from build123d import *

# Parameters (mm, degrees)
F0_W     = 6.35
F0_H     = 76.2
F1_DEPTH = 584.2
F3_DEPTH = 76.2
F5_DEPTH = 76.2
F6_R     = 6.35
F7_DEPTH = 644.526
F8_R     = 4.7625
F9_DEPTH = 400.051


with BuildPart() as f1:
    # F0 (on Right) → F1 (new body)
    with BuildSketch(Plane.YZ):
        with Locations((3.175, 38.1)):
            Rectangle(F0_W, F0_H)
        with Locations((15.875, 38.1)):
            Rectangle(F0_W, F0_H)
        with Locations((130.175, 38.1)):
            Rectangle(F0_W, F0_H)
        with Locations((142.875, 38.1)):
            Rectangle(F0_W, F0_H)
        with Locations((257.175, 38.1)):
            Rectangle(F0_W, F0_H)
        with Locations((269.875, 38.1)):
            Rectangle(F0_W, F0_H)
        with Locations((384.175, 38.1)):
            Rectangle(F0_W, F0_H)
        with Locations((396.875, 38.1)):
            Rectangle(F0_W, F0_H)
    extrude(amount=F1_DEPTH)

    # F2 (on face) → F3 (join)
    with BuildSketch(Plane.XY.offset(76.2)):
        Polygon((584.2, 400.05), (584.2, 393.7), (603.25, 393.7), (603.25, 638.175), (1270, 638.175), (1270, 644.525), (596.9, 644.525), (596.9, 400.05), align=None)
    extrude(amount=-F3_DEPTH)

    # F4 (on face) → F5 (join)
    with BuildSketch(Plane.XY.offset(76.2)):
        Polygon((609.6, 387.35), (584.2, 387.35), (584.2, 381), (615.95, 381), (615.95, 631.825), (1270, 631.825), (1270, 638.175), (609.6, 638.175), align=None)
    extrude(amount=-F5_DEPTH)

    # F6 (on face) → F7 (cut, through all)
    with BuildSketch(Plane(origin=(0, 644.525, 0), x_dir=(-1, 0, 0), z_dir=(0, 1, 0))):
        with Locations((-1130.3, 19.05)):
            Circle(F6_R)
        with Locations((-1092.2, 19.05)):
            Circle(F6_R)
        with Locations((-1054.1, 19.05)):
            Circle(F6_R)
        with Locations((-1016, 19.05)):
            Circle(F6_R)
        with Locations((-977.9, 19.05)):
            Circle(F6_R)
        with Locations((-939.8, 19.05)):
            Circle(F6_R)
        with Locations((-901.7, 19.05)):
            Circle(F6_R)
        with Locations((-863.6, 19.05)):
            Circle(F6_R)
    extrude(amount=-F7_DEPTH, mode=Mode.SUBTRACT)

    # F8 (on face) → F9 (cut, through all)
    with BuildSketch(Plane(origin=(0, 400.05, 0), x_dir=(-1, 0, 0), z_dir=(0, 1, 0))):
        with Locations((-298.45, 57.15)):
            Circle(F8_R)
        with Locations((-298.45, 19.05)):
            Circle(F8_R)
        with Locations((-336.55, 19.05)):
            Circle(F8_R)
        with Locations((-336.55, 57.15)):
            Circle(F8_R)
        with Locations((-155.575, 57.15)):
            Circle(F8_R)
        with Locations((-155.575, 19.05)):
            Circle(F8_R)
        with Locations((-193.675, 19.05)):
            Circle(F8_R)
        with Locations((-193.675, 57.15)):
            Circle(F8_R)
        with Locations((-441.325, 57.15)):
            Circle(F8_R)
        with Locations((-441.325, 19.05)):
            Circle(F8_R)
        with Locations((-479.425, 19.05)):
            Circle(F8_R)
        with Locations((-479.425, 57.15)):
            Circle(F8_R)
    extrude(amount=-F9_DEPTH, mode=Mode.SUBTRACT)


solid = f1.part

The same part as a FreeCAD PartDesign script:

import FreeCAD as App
import Part
import Sketcher
from FreeCAD import Vector
Q = App.Units.Quantity


def add_polygon(sketch, points):
    """Adds a closed chain of lines whose ends are joined by coincident constraints."""
    first, n = sketch.GeometryCount, len(points)
    for a, b in zip(points, points[1:] + points[:1]):
        sketch.addGeometry(Part.LineSegment(App.Vector(*a, 0), App.Vector(*b, 0)), False)
    for i in range(n):
        sketch.addConstraint(Sketcher.Constraint("Coincident", first + i, 2, first + (i + 1) % n, 1))

doc = App.newDocument("Part")
body = doc.addObject("PartDesign::Body", "Body")
body.AllowCompound = True

sketch1 = body.newObject("Sketcher::SketchObject", "Sketch")
sketch1.AttachmentSupport = (doc.getObject("YZ_Plane"), [""])
sketch1.MapMode = "FlatFace"
add_polygon(sketch1, [(0, 76), (0, 0), (6, 0), (6, 76)])
add_polygon(sketch1, [(13, 76), (13, 0), (19, 0), (19, 76)])
add_polygon(sketch1, [(127, 76), (127, 0), (133, 0), (133, 76)])
add_polygon(sketch1, [(140, 76), (140, 0), (146, 0), (146, 76)])
add_polygon(sketch1, [(254, 76), (254, 0), (260, 0), (260, 76)])
add_polygon(sketch1, [(267, 76), (267, 0), (273, 0), (273, 76)])
add_polygon(sketch1, [(381, 76), (381, 0), (387, 0), (387, 76)])
add_polygon(sketch1, [(394, 76), (394, 0), (400, 0), (400, 76)])
sketch1.addConstraint(Sketcher.Constraint("Vertical", 0))
sketch1.addConstraint(Sketcher.Constraint("Horizontal", 1))
sketch1.addConstraint(Sketcher.Constraint("Vertical", 2))
sketch1.addConstraint(Sketcher.Constraint("Horizontal", 3))
sketch1.addConstraint(Sketcher.Constraint("Vertical", 4))
sketch1.addConstraint(Sketcher.Constraint("Horizontal", 5))
sketch1.addConstraint(Sketcher.Constraint("Vertical", 6))
sketch1.addConstraint(Sketcher.Constraint("Horizontal", 7))
sketch1.addConstraint(Sketcher.Constraint("Vertical", 8))
sketch1.addConstraint(Sketcher.Constraint("Horizontal", 9))
sketch1.addConstraint(Sketcher.Constraint("Vertical", 10))
sketch1.addConstraint(Sketcher.Constraint("Horizontal", 11))
sketch1.addConstraint(Sketcher.Constraint("Vertical", 12))
sketch1.addConstraint(Sketcher.Constraint("Horizontal", 13))
sketch1.addConstraint(Sketcher.Constraint("Vertical", 14))
sketch1.addConstraint(Sketcher.Constraint("Horizontal", 15))
sketch1.addConstraint(Sketcher.Constraint("Vertical", 16))
sketch1.addConstraint(Sketcher.Constraint("Horizontal", 17))
sketch1.addConstraint(Sketcher.Constraint("Vertical", 18))
sketch1.addConstraint(Sketcher.Constraint("Horizontal", 19))
sketch1.addConstraint(Sketcher.Constraint("Vertical", 20))
sketch1.addConstraint(Sketcher.Constraint("Horizontal", 21))
sketch1.addConstraint(Sketcher.Constraint("Vertical", 22))
sketch1.addConstraint(Sketcher.Constraint("Horizontal", 23))
sketch1.addConstraint(Sketcher.Constraint("Vertical", 24))
sketch1.addConstraint(Sketcher.Constraint("Horizontal", 25))
sketch1.addConstraint(Sketcher.Constraint("Vertical", 26))
sketch1.addConstraint(Sketcher.Constraint("Horizontal", 27))
sketch1.addConstraint(Sketcher.Constraint("Vertical", 28))
sketch1.addConstraint(Sketcher.Constraint("Horizontal", 29))
sketch1.addConstraint(Sketcher.Constraint("Vertical", 30))
sketch1.addConstraint(Sketcher.Constraint("Horizontal", 31))
sketch1.addConstraint(Sketcher.Constraint("Coincident", 0, 2, -1, 1))
sketch1.addConstraint(Sketcher.Constraint("PointOnObject", 4, 2, -1))
sketch1.addConstraint(Sketcher.Constraint("PointOnObject", 8, 2, -1))
sketch1.addConstraint(Sketcher.Constraint("PointOnObject", 12, 2, -1))
sketch1.addConstraint(Sketcher.Constraint("PointOnObject", 16, 2, -1))
sketch1.addConstraint(Sketcher.Constraint("PointOnObject", 20, 2, -1))
sketch1.addConstraint(Sketcher.Constraint("PointOnObject", 24, 2, -1))
sketch1.addConstraint(Sketcher.Constraint("PointOnObject", 28, 2, -1))
sketch1.addConstraint(Sketcher.Constraint("Horizontal", 3, 2, 6, 2))
sketch1.addConstraint(Sketcher.Constraint("Horizontal", 7, 2, 10, 2))
sketch1.addConstraint(Sketcher.Constraint("Horizontal", 11, 2, 14, 2))
sketch1.addConstraint(Sketcher.Constraint("Horizontal", 15, 2, 18, 2))
sketch1.addConstraint(Sketcher.Constraint("Horizontal", 19, 2, 22, 2))
sketch1.addConstraint(Sketcher.Constraint("Horizontal", 23, 2, 26, 2))
sketch1.addConstraint(Sketcher.Constraint("Horizontal", 27, 2, 30, 2))
sketch1.addConstraint(Sketcher.Constraint("Equal", 3, 5))
sketch1.addConstraint(Sketcher.Constraint("Equal", 7, 9))
sketch1.addConstraint(Sketcher.Constraint("Equal", 11, 13))
sketch1.addConstraint(Sketcher.Constraint("Equal", 15, 17))
sketch1.addConstraint(Sketcher.Constraint("Equal", 19, 21))
sketch1.addConstraint(Sketcher.Constraint("Equal", 23, 25))
sketch1.addConstraint(Sketcher.Constraint("Equal", 27, 29))
sketch1.addConstraint(Sketcher.Constraint("DistanceY", 0, 2, 0, 1, Q("3 in")))
sketch1.addConstraint(Sketcher.Constraint("DistanceX", -1, 1, 8, 2, Q("5 in")))
sketch1.addConstraint(Sketcher.Constraint("DistanceX", -1, 1, 16, 2, Q("10 in")))
sketch1.addConstraint(Sketcher.Constraint("DistanceX", -1, 1, 24, 2, Q("15 in")))
sketch1.addConstraint(Sketcher.Constraint("DistanceX", 1, 1, 1, 2, Q("0.25 in")))
sketch1.addConstraint(Sketcher.Constraint("DistanceX", -1, 1, 4, 2, Q("0.5 in")))
sketch1.addConstraint(Sketcher.Constraint("DistanceX", -1, 1, 12, 2, Q("5.5 in")))
sketch1.addConstraint(Sketcher.Constraint("DistanceX", -1, 1, 20, 2, Q("10.5 in")))
sketch1.addConstraint(Sketcher.Constraint("DistanceX", -1, 1, 28, 2, Q("15.5 in")))
pad1 = body.newObject("PartDesign::Pad", "Pad")
pad1.Profile = sketch1
pad1.Length = Q("23 in")

sketch2 = body.newObject("Sketcher::SketchObject", "Sketch001")
sketch2.AttachmentSupport = (doc.getObject("XY_Plane"), [""])
sketch2.MapMode = "FlatFace"
sketch2.AttachmentOffset = App.Placement(Vector(0, 0, 3 * 25.4), App.Rotation())
add_polygon(sketch2, [(584, 400), (584, 394), (603, 394), (603, 638), (1270, 638), (1270, 645), (597, 645), (597, 400)])
sketch2.addConstraint(Sketcher.Constraint("Vertical", 0))
sketch2.addConstraint(Sketcher.Constraint("Horizontal", 1))
sketch2.addConstraint(Sketcher.Constraint("Vertical", 2))
sketch2.addConstraint(Sketcher.Constraint("Horizontal", 3))
sketch2.addConstraint(Sketcher.Constraint("Vertical", 4))
sketch2.addConstraint(Sketcher.Constraint("Horizontal", 5))
sketch2.addConstraint(Sketcher.Constraint("Vertical", 6))
sketch2.addConstraint(Sketcher.Constraint("Horizontal", 7))
sketch2.addConstraint(Sketcher.Constraint("Equal", 0, 4))
sketch2.addConstraint(Sketcher.Constraint("DistanceX", 5, 2, 5, 1, Q("26.5 in")))
sketch2.addConstraint(Sketcher.Constraint("DistanceX", 7, 2, 7, 1, Q("0.5 in")))
sketch2.addConstraint(Sketcher.Constraint("DistanceX", -1, 1, 0, 2, Q("23 in")))
sketch2.addConstraint(Sketcher.Constraint("DistanceX", 1, 1, 1, 2, Q("0.75 in")))
sketch2.addConstraint(Sketcher.Constraint("DistanceY", 0, 2, 0, 1, Q("0.25 in")))
sketch2.addConstraint(Sketcher.Constraint("DistanceY", -1, 1, 0, 2, Q("15.5 in")))
sketch2.addConstraint(Sketcher.Constraint("DistanceY", 2, 1, 2, 2, Q("9.625 in")))
pad2 = body.newObject("PartDesign::Pad", "Pad001")
pad2.Profile = sketch2
pad2.Length = Q("3 in")
pad2.Reversed = True

sketch3 = body.newObject("Sketcher::SketchObject", "Sketch002")
sketch3.AttachmentSupport = (doc.getObject("XY_Plane"), [""])
sketch3.MapMode = "FlatFace"
sketch3.AttachmentOffset = App.Placement(Vector(0, 0, 3 * 25.4), App.Rotation())
add_polygon(sketch3, [(610, 387), (584, 387), (584, 381), (616, 381), (616, 632), (1270, 632), (1270, 638), (610, 638)])
sketch3.addConstraint(Sketcher.Constraint("Horizontal", 0))
sketch3.addConstraint(Sketcher.Constraint("Vertical", 1))
sketch3.addConstraint(Sketcher.Constraint("Horizontal", 2))
sketch3.addConstraint(Sketcher.Constraint("Vertical", 3))
sketch3.addConstraint(Sketcher.Constraint("Horizontal", 4))
sketch3.addConstraint(Sketcher.Constraint("Vertical", 5))
sketch3.addConstraint(Sketcher.Constraint("Horizontal", 6))
sketch3.addConstraint(Sketcher.Constraint("Vertical", 7))
sketch3.addConstraint(Sketcher.Constraint("Equal", 1, 5))
sketch3.addConstraint(Sketcher.Constraint("DistanceX", 0, 2, 0, 1, Q("1 in")))
sketch3.addConstraint(Sketcher.Constraint("DistanceX", 6, 2, 6, 1, Q("26 in")))
sketch3.addConstraint(Sketcher.Constraint("DistanceX", -1, 1, 0, 2, Q("23 in")))
sketch3.addConstraint(Sketcher.Constraint("DistanceY", -1, 1, 1, 2, Q("15 in")))
sketch3.addConstraint(Sketcher.Constraint("DistanceX", 2, 1, 2, 2, Q("1.25 in")))
sketch3.addConstraint(Sketcher.Constraint("DistanceY", 1, 2, 1, 1, Q("0.25 in")))
sketch3.addConstraint(Sketcher.Constraint("DistanceY", 3, 1, 3, 2, Q("9.875 in")))
pad3 = body.newObject("PartDesign::Pad", "Pad002")
pad3.Profile = sketch3
pad3.Length = Q("3 in")
pad3.Reversed = True

sketch4 = body.newObject("Sketcher::SketchObject", "Sketch003")
sketch4.AttachmentSupport = (doc.getObject("XZ_Plane"), [""])
sketch4.MapMode = "FlatFace"
sketch4.AttachmentOffset = App.Placement(Vector(0, 0, -25.375 * 25.4), App.Rotation())
sketch4.addGeometry(Part.Circle(Vector(1130, 19, 0), Vector(0, 0, 1), 6), False)
sketch4.addGeometry(Part.Circle(Vector(1092, 19, 0), Vector(0, 0, 1), 6), False)
sketch4.addGeometry(Part.Circle(Vector(1054, 19, 0), Vector(0, 0, 1), 6), False)
sketch4.addGeometry(Part.Circle(Vector(1016, 19, 0), Vector(0, 0, 1), 6), False)
sketch4.addGeometry(Part.Circle(Vector(978, 19, 0), Vector(0, 0, 1), 6), False)
sketch4.addGeometry(Part.Circle(Vector(940, 19, 0), Vector(0, 0, 1), 6), False)
sketch4.addGeometry(Part.Circle(Vector(902, 19, 0), Vector(0, 0, 1), 6), False)
sketch4.addGeometry(Part.Circle(Vector(864, 19, 0), Vector(0, 0, 1), 6), False)
sketch4.addConstraint(Sketcher.Constraint("Equal", 0, 1))
sketch4.addConstraint(Sketcher.Constraint("Equal", 1, 2))
sketch4.addConstraint(Sketcher.Constraint("Equal", 2, 3))
sketch4.addConstraint(Sketcher.Constraint("Equal", 3, 4))
sketch4.addConstraint(Sketcher.Constraint("Equal", 4, 5))
sketch4.addConstraint(Sketcher.Constraint("Equal", 5, 6))
sketch4.addConstraint(Sketcher.Constraint("Equal", 6, 7))
sketch4.addConstraint(Sketcher.Constraint("Horizontal", 0, 3, 1, 3))
sketch4.addConstraint(Sketcher.Constraint("Horizontal", 1, 3, 2, 3))
sketch4.addConstraint(Sketcher.Constraint("Horizontal", 2, 3, 3, 3))
sketch4.addConstraint(Sketcher.Constraint("Horizontal", 3, 3, 4, 3))
sketch4.addConstraint(Sketcher.Constraint("Horizontal", 4, 3, 5, 3))
sketch4.addConstraint(Sketcher.Constraint("Horizontal", 5, 3, 6, 3))
sketch4.addConstraint(Sketcher.Constraint("Horizontal", 6, 3, 7, 3))
sketch4.addConstraint(Sketcher.Constraint("Diameter", 0, Q("0.5 in")))
sketch4.addConstraint(Sketcher.Constraint("DistanceX", -1, 1, 1, 3, Q("43 in")))
sketch4.addConstraint(Sketcher.Constraint("DistanceX", -1, 1, 3, 3, Q("40 in")))
sketch4.addConstraint(Sketcher.Constraint("DistanceX", -1, 1, 5, 3, Q("37 in")))
sketch4.addConstraint(Sketcher.Constraint("DistanceX", -1, 1, 7, 3, Q("34 in")))
sketch4.addConstraint(Sketcher.Constraint("DistanceX", 2, 3, 0, 3, Q("3 in")))
sketch4.addConstraint(Sketcher.Constraint("DistanceX", 4, 3, 2, 3, Q("3 in")))
sketch4.addConstraint(Sketcher.Constraint("DistanceX", 6, 3, 4, 3, Q("3 in")))
sketch4.addConstraint(Sketcher.Constraint("DistanceX", -1, 1, 0, 3, Q("44.5 in")))
sketch4.addConstraint(Sketcher.Constraint("DistanceY", -1, 1, 0, 3, Q("0.75 in")))
pocket1 = body.newObject("PartDesign::Pocket", "Pocket")
pocket1.Profile = sketch4
pocket1.Type = "ThroughAll"
pocket1.Reversed = True

sketch5 = body.newObject("Sketcher::SketchObject", "Sketch004")
sketch5.AttachmentSupport = (doc.getObject("XZ_Plane"), [""])
sketch5.MapMode = "FlatFace"
sketch5.AttachmentOffset = App.Placement(Vector(0, 0, -15.75 * 25.4), App.Rotation())
sketch5.addGeometry(Part.Circle(Vector(298.4, 57.1, 0), Vector(0, 0, 1), 4.8), False)
sketch5.addGeometry(Part.Circle(Vector(298.4, 19.1, 0), Vector(0, 0, 1), 4.8), False)
sketch5.addGeometry(Part.Circle(Vector(336.6, 19.1, 0), Vector(0, 0, 1), 4.8), False)
sketch5.addGeometry(Part.Circle(Vector(336.6, 57.1, 0), Vector(0, 0, 1), 4.8), False)
sketch5.addGeometry(Part.Circle(Vector(155.6, 57.1, 0), Vector(0, 0, 1), 4.8), False)
sketch5.addGeometry(Part.Circle(Vector(155.6, 19.1, 0), Vector(0, 0, 1), 4.8), False)
sketch5.addGeometry(Part.Circle(Vector(193.7, 19.1, 0), Vector(0, 0, 1), 4.8), False)
sketch5.addGeometry(Part.Circle(Vector(193.7, 57.1, 0), Vector(0, 0, 1), 4.8), False)
sketch5.addGeometry(Part.Circle(Vector(441.3, 57.1, 0), Vector(0, 0, 1), 4.8), False)
sketch5.addGeometry(Part.Circle(Vector(441.3, 19.1, 0), Vector(0, 0, 1), 4.8), False)
sketch5.addGeometry(Part.Circle(Vector(479.4, 19.1, 0), Vector(0, 0, 1), 4.8), False)
sketch5.addGeometry(Part.Circle(Vector(479.4, 57.1, 0), Vector(0, 0, 1), 4.8), False)
sketch5.addConstraint(Sketcher.Constraint("Equal", 0, 1))
sketch5.addConstraint(Sketcher.Constraint("Equal", 1, 2))
sketch5.addConstraint(Sketcher.Constraint("Equal", 2, 3))
sketch5.addConstraint(Sketcher.Constraint("Equal", 3, 4))
sketch5.addConstraint(Sketcher.Constraint("Equal", 4, 5))
sketch5.addConstraint(Sketcher.Constraint("Equal", 5, 6))
sketch5.addConstraint(Sketcher.Constraint("Equal", 6, 7))
sketch5.addConstraint(Sketcher.Constraint("Equal", 7, 8))
sketch5.addConstraint(Sketcher.Constraint("Equal", 8, 9))
sketch5.addConstraint(Sketcher.Constraint("Equal", 9, 10))
sketch5.addConstraint(Sketcher.Constraint("Equal", 10, 11))
sketch5.addConstraint(Sketcher.Constraint("Horizontal", 1, 3, 2, 3))
sketch5.addConstraint(Sketcher.Constraint("Horizontal", 0, 3, 3, 3))
sketch5.addConstraint(Sketcher.Constraint("Horizontal", 3, 3, 4, 3))
sketch5.addConstraint(Sketcher.Constraint("Horizontal", 2, 3, 5, 3))
sketch5.addConstraint(Sketcher.Constraint("Horizontal", 5, 3, 6, 3))
sketch5.addConstraint(Sketcher.Constraint("Horizontal", 4, 3, 7, 3))
sketch5.addConstraint(Sketcher.Constraint("Horizontal", 7, 3, 8, 3))
sketch5.addConstraint(Sketcher.Constraint("Horizontal", 6, 3, 9, 3))
sketch5.addConstraint(Sketcher.Constraint("Horizontal", 9, 3, 10, 3))
sketch5.addConstraint(Sketcher.Constraint("Horizontal", 8, 3, 11, 3))
sketch5.addConstraint(Sketcher.Constraint("Vertical", 0, 3, 1, 3))
sketch5.addConstraint(Sketcher.Constraint("Vertical", 2, 3, 3, 3))
sketch5.addConstraint(Sketcher.Constraint("Vertical", 4, 3, 5, 3))
sketch5.addConstraint(Sketcher.Constraint("Vertical", 6, 3, 7, 3))
sketch5.addConstraint(Sketcher.Constraint("Vertical", 8, 3, 9, 3))
sketch5.addConstraint(Sketcher.Constraint("Vertical", 10, 3, 11, 3))
sketch5.addConstraint(Sketcher.Constraint("Diameter", 0, Q("0.375 in")))
sketch5.addConstraint(Sketcher.Constraint("DistanceY", 1, 3, 0, 3, Q("1.5 in")))
sketch5.addConstraint(Sketcher.Constraint("DistanceX", 1, 3, 2, 3, Q("1.5 in")))
sketch5.addConstraint(Sketcher.Constraint("DistanceX", 5, 3, 6, 3, Q("1.5 in")))
sketch5.addConstraint(Sketcher.Constraint("DistanceX", 9, 3, 10, 3, Q("1.5 in")))
sketch5.addConstraint(Sketcher.Constraint("DistanceX", -1, 1, 0, 3, Q("11.75 in")))
sketch5.addConstraint(Sketcher.Constraint("DistanceY", -1, 1, 0, 3, Q("2.25 in")))
sketch5.addConstraint(Sketcher.Constraint("DistanceX", 7, 3, 8, 3, Q("9.75 in")))
sketch5.addConstraint(Sketcher.Constraint("DistanceX", -1, 1, 4, 3, Q("6.125 in")))
pocket2 = body.newObject("PartDesign::Pocket", "Pocket001")
pocket2.Profile = sketch5
pocket2.Type = "ThroughAll"
pocket2.Reversed = True

doc.recompute()
